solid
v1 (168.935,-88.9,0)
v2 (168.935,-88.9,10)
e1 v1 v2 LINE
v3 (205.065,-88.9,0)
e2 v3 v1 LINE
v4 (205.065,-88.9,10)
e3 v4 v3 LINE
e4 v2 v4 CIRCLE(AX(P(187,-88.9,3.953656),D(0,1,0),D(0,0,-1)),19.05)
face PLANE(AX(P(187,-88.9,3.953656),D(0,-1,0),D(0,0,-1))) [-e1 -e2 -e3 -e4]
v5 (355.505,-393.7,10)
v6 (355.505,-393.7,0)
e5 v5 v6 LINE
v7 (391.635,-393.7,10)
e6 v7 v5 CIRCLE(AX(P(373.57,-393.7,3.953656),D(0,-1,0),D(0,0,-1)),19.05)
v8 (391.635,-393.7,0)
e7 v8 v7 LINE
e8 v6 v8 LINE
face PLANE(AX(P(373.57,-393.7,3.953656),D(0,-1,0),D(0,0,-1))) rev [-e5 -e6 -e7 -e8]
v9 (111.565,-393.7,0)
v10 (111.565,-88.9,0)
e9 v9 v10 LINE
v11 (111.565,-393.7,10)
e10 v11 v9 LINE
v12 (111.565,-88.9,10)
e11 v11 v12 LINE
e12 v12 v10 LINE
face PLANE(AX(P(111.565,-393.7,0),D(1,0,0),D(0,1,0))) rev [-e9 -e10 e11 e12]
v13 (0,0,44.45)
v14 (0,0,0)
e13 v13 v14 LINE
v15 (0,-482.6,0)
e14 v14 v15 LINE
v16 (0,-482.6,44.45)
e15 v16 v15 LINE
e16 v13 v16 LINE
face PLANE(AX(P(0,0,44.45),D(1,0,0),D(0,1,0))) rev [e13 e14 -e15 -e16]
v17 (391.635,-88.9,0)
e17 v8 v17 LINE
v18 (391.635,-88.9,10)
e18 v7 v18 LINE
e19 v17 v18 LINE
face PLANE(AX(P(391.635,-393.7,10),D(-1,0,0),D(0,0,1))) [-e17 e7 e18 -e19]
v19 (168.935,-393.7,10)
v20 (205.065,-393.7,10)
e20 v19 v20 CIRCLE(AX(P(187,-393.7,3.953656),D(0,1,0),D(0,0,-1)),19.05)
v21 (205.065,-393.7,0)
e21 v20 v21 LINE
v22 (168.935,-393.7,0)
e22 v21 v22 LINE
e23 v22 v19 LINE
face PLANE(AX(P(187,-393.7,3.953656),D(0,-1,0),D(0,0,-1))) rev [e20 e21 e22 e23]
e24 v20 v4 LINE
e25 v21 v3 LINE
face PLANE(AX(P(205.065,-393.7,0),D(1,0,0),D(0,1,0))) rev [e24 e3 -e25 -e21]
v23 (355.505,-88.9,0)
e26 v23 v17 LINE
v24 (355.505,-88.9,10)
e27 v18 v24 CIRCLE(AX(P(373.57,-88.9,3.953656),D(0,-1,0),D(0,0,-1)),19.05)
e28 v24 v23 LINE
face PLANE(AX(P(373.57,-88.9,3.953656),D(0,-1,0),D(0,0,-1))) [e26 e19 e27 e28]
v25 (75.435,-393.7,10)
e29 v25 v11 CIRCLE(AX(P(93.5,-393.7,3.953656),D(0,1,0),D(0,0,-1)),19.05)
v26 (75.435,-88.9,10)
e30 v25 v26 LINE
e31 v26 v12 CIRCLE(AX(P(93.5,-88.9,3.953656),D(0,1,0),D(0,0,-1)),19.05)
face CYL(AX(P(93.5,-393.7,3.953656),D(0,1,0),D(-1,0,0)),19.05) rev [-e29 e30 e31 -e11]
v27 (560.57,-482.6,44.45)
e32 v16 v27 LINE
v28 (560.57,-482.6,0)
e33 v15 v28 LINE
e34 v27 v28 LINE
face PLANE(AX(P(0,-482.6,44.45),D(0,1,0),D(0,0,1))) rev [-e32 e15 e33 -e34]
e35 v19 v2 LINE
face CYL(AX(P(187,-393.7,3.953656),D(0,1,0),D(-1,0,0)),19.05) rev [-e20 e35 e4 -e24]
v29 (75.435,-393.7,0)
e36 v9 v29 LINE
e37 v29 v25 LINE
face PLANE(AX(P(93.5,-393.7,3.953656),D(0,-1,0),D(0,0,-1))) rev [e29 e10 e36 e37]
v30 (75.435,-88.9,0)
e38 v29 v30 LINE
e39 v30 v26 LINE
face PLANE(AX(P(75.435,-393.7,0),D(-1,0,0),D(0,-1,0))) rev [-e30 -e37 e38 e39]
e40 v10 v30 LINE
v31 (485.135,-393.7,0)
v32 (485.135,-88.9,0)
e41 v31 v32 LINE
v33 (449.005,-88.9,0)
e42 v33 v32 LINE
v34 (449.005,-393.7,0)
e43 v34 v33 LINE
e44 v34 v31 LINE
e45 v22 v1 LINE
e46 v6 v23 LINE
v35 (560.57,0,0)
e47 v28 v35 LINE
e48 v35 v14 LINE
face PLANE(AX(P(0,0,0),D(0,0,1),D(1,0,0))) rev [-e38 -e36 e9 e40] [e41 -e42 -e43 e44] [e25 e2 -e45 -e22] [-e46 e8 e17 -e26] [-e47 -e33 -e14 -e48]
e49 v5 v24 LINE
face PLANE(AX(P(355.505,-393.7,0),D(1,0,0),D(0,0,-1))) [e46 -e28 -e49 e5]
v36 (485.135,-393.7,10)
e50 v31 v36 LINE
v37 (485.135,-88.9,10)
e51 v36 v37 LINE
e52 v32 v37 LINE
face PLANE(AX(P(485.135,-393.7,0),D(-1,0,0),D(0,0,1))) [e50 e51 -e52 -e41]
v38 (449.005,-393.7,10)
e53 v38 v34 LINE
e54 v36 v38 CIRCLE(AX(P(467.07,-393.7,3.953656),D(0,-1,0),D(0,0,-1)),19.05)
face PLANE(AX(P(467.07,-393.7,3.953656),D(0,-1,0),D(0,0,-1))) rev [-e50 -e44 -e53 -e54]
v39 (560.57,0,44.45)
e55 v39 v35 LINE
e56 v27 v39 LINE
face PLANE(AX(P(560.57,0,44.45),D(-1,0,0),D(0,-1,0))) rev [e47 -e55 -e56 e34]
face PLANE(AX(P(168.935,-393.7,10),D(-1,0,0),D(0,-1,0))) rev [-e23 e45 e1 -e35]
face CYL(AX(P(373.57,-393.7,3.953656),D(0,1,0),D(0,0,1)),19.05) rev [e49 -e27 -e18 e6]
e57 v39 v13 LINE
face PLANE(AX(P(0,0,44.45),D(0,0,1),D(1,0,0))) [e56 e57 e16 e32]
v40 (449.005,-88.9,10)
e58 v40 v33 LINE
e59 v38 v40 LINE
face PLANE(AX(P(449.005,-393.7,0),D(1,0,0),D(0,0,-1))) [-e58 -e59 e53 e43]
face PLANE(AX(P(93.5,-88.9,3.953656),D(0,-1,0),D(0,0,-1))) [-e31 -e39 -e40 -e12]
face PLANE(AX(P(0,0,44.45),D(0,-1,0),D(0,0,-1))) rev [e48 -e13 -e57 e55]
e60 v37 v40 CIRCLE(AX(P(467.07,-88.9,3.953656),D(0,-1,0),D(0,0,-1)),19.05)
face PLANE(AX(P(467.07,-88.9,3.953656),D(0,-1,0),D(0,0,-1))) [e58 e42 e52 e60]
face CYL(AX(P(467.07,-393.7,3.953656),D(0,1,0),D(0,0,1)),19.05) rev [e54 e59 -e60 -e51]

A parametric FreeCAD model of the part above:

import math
import FreeCAD as App
import Part
import Sketcher
Q = App.Units.Quantity

doc = App.newDocument("Part")
body = doc.addObject("PartDesign::Body", "Body")

# Sketch on XY plane
sketch1 = body.newObject("Sketcher::SketchObject", "Sketch")
sketch1.AttachmentSupport = (doc.getObject("XY_Plane"), [""])
sketch1.MapMode = "FlatFace"
sketch1.addGeometry(Part.LineSegment(App.Vector(0, 0, 0), App.Vector(0, -482.6, 0)), False)
sketch1.addGeometry(Part.LineSegment(App.Vector(0, -482.6, 0), App.Vector(560.57, -482.6, 0)), False)
sketch1.addGeometry(Part.LineSegment(App.Vector(560.57, -482.6, 0), App.Vector(560.57, 0, 0)), False)
sketch1.addGeometry(Part.LineSegment(App.Vector(560.57, 0, 0), App.Vector(0, 0, 0)), False)
sketch1.addConstraint(Sketcher.Constraint("Coincident", 0, 2, 1, 1))
sketch1.addConstraint(Sketcher.Constraint("Coincident", 1, 2, 2, 1))
sketch1.addConstraint(Sketcher.Constraint("Coincident", 2, 2, 3, 1))
sketch1.addConstraint(Sketcher.Constraint("Coincident", 3, 2, 0, 1))
sketch1.addConstraint(Sketcher.Constraint("Vertical", 0))
sketch1.addConstraint(Sketcher.Constraint("Horizontal", 1))
sketch1.addConstraint(Sketcher.Constraint("Vertical", 2))
sketch1.addConstraint(Sketcher.Constraint("Horizontal", 3))
sketch1.addConstraint(Sketcher.Constraint("Coincident", 3, 2, -1, 1))
sketch1.addConstraint(Sketcher.Constraint("DistanceY", 0, 2, 0, 1, Q("19 in")))
sketch1.addConstraint(Sketcher.Constraint("DistanceX", 1, 1, 1, 2, Q("560.57 mm")))
pad1 = body.newObject("PartDesign::Pad", "Pad")
pad1.Profile = sketch1
pad1.Length = Q("1.75 in")

# Sketch on XZ plane
sketch2 = body.newObject("Sketcher::SketchObject", "Sketch001")
sketch2.AttachmentSupport = (doc.getObject("XZ_Plane"), [""])
sketch2.MapMode = "FlatFace"
sketch2.AttachmentOffset = App.Placement(App.Vector(0, 0, 9.5 * 25.4), App.Rotation())
sketch2.addGeometry(Part.LineSegment(App.Vector(485.135, 0, 0), App.Vector(485.135, 10, 0)), False)
sketch2.addGeometry(Part.ArcOfCircle(Part.Circle(App.Vector(467.07, 3.953656, 0), App.Vector(0, 0, 1), 19.05), math.radians(18.505361), math.radians(161.494639)), False)
sketch2.addGeometry(Part.LineSegment(App.Vector(449.005, 10, 0), App.Vector(449.005, 0, 0)), False)
sketch2.addGeometry(Part.LineSegment(App.Vector(449.005, 0, 0), App.Vector(485.135, 0, 0)), False)
sketch2.addGeometry(Part.LineSegment(App.Vector(391.635, 0, 0), App.Vector(391.635, 10, 0)), False)
sketch2.addGeometry(Part.ArcOfCircle(Part.Circle(App.Vector(373.57, 3.953656, 0), App.Vector(0, 0, 1), 19.05), math.radians(18.505361), math.radians(161.494639)), False)
sketch2.addGeometry(Part.LineSegment(App.Vector(355.505, 10, 0), App.Vector(355.505, 0, 0)), False)
sketch2.addGeometry(Part.LineSegment(App.Vector(355.505, 0, 0), App.Vector(391.635, 0, 0)), False)
sketch2.addConstraint(Sketcher.Constraint("Coincident", 0, 2, 1, 1))
sketch2.addConstraint(Sketcher.Constraint("Coincident", 1, 2, 2, 1))
sketch2.addConstraint(Sketcher.Constraint("Coincident", 2, 2, 3, 1))
sketch2.addConstraint(Sketcher.Constraint("Coincident", 3, 2, 0, 1))
sketch2.addConstraint(Sketcher.Constraint("Coincident", 4, 2, 5, 1))
sketch2.addConstraint(Sketcher.Constraint("Coincident", 5, 2, 6, 1))
sketch2.addConstraint(Sketcher.Constraint("Coincident", 6, 2, 7, 1))
sketch2.addConstraint(Sketcher.Constraint("Coincident", 7, 2, 4, 1))
sketch2.addConstraint(Sketcher.Constraint("Vertical", 0))
sketch2.addConstraint(Sketcher.Constraint("Vertical", 2))
sketch2.addConstraint(Sketcher.Constraint("Horizontal", 3))
sketch2.addConstraint(Sketcher.Constraint("Vertical", 4))
sketch2.addConstraint(Sketcher.Constraint("Vertical", 6))
sketch2.addConstraint(Sketcher.Constraint("Horizontal", 7))
sketch2.addConstraint(Sketcher.Constraint("Equal", 1, 5))
sketch2.addConstraint(Sketcher.Constraint("PointOnObject", 2, 2, -1))
sketch2.addConstraint(Sketcher.Constraint("PointOnObject", 6, 2, -1))
sketch2.addConstraint(Sketcher.Constraint("Horizontal", 1, 3, 5, 3))
sketch2.addConstraint(Sketcher.Constraint("Horizontal", 0, 2, 1, 2))
sketch2.addConstraint(Sketcher.Constraint("Horizontal", 1, 2, 4, 2))
sketch2.addConstraint(Sketcher.Constraint("Horizontal", 4, 2, 5, 2))
sketch2.addConstraint(Sketcher.Constraint("Radius", 1, Q("0.75 in")))
sketch2.addConstraint(Sketcher.Constraint("DistanceX", 3, 1, 3, 2, Q("36.13 mm")))
sketch2.addConstraint(Sketcher.Constraint("DistanceY", 0, 1, 0, 2, Q("10 mm")))
sketch2.addConstraint(Sketcher.Constraint("DistanceX", -1, 1, 1, 3, Q("467.07 mm")))
sketch2.addConstraint(Sketcher.Constraint("DistanceX", -1, 1, 5, 3, Q("373.57 mm")))
pocket1 = body.newObject("PartDesign::Pocket", "Pocket")
pocket1.Profile = sketch2
pocket1.Length = Q("12 in")
pocket1.Midplane = True
doc.recompute()

datumplane = body.newObject("PartDesign::Plane", "DatumPlane")
datumplane.AttachmentSupport = (doc.getObject("YZ_Plane"), [""])
datumplane.MapMode = "FlatFace"
datumplane.AttachmentOffset = App.Placement(App.Vector(0, 0, 280.285), App.Rotation())
mirrored = body.newObject("PartDesign::Mirrored", "Mirrored")
mirrored.Originals = [pocket1]
mirrored.MirrorPlane = (datumplane, [""])
body.Tip = mirrored

doc.recompute()
